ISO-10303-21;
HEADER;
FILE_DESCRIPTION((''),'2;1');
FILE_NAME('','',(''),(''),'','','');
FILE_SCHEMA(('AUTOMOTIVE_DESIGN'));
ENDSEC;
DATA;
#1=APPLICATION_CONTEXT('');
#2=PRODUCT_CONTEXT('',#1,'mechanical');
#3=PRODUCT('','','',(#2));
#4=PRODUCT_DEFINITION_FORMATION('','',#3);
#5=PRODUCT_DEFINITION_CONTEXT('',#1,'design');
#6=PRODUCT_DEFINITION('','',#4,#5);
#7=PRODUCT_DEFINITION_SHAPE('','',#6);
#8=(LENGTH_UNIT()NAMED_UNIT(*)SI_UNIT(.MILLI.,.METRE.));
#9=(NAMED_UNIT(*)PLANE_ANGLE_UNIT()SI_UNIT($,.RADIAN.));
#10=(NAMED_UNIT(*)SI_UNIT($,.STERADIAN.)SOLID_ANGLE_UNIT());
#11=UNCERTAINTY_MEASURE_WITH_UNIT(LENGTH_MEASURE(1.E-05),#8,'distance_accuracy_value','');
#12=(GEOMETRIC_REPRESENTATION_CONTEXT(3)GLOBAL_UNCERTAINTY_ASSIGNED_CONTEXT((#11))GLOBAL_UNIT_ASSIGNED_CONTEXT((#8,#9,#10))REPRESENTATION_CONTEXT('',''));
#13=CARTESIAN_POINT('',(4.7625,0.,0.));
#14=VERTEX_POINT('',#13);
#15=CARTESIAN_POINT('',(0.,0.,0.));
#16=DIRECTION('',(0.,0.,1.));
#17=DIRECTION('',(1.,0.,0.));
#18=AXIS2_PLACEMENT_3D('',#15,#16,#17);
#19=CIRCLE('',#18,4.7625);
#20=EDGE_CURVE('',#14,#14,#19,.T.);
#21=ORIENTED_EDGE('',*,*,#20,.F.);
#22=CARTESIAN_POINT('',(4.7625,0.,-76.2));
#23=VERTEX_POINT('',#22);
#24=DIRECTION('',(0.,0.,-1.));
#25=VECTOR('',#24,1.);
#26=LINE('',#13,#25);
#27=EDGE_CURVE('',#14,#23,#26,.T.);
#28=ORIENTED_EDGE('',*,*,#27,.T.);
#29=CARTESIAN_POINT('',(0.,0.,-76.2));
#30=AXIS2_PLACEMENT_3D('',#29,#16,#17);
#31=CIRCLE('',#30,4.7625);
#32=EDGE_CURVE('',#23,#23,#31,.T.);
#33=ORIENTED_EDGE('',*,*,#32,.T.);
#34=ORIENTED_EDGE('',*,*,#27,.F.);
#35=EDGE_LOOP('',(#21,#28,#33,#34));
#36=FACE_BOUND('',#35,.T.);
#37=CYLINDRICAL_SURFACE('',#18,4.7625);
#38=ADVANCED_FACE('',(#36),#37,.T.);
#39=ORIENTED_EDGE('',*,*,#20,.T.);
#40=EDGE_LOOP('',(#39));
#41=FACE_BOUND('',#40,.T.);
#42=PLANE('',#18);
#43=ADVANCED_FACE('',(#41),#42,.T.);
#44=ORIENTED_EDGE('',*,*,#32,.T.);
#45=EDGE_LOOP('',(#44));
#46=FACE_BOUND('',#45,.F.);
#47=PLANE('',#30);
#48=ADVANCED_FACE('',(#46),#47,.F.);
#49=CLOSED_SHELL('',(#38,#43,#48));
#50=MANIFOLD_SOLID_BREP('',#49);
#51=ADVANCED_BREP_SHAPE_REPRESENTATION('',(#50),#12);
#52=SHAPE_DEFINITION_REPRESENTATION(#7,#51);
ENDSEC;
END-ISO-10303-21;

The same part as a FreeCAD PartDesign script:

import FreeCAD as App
import Part
import Sketcher

V = App.Vector
Q = App.Units.Quantity

doc = App.newDocument("Part")
body = doc.addObject("PartDesign::Body", "Body")

sketch1 = body.newObject("Sketcher::SketchObject", "Sketch")
sketch1.AttachmentSupport = (doc.getObject("XY_Plane"), [""])
sketch1.MapMode = "FlatFace"
sketch1.addGeometry(Part.Circle(V(0, 0, 0), V(0, 0, 1), 4.8), False)
sketch1.addConstraint(Sketcher.Constraint("Coincident", 0, 3, -1, 1))
sketch1.addConstraint(Sketcher.Constraint("Diameter", 0, Q("0.375 in")))
pad1 = body.newObject("PartDesign::Pad", "Pad")
pad1.Profile = sketch1
pad1.Length = Q("3 in")
pad1.Reversed = True

doc.recompute()
